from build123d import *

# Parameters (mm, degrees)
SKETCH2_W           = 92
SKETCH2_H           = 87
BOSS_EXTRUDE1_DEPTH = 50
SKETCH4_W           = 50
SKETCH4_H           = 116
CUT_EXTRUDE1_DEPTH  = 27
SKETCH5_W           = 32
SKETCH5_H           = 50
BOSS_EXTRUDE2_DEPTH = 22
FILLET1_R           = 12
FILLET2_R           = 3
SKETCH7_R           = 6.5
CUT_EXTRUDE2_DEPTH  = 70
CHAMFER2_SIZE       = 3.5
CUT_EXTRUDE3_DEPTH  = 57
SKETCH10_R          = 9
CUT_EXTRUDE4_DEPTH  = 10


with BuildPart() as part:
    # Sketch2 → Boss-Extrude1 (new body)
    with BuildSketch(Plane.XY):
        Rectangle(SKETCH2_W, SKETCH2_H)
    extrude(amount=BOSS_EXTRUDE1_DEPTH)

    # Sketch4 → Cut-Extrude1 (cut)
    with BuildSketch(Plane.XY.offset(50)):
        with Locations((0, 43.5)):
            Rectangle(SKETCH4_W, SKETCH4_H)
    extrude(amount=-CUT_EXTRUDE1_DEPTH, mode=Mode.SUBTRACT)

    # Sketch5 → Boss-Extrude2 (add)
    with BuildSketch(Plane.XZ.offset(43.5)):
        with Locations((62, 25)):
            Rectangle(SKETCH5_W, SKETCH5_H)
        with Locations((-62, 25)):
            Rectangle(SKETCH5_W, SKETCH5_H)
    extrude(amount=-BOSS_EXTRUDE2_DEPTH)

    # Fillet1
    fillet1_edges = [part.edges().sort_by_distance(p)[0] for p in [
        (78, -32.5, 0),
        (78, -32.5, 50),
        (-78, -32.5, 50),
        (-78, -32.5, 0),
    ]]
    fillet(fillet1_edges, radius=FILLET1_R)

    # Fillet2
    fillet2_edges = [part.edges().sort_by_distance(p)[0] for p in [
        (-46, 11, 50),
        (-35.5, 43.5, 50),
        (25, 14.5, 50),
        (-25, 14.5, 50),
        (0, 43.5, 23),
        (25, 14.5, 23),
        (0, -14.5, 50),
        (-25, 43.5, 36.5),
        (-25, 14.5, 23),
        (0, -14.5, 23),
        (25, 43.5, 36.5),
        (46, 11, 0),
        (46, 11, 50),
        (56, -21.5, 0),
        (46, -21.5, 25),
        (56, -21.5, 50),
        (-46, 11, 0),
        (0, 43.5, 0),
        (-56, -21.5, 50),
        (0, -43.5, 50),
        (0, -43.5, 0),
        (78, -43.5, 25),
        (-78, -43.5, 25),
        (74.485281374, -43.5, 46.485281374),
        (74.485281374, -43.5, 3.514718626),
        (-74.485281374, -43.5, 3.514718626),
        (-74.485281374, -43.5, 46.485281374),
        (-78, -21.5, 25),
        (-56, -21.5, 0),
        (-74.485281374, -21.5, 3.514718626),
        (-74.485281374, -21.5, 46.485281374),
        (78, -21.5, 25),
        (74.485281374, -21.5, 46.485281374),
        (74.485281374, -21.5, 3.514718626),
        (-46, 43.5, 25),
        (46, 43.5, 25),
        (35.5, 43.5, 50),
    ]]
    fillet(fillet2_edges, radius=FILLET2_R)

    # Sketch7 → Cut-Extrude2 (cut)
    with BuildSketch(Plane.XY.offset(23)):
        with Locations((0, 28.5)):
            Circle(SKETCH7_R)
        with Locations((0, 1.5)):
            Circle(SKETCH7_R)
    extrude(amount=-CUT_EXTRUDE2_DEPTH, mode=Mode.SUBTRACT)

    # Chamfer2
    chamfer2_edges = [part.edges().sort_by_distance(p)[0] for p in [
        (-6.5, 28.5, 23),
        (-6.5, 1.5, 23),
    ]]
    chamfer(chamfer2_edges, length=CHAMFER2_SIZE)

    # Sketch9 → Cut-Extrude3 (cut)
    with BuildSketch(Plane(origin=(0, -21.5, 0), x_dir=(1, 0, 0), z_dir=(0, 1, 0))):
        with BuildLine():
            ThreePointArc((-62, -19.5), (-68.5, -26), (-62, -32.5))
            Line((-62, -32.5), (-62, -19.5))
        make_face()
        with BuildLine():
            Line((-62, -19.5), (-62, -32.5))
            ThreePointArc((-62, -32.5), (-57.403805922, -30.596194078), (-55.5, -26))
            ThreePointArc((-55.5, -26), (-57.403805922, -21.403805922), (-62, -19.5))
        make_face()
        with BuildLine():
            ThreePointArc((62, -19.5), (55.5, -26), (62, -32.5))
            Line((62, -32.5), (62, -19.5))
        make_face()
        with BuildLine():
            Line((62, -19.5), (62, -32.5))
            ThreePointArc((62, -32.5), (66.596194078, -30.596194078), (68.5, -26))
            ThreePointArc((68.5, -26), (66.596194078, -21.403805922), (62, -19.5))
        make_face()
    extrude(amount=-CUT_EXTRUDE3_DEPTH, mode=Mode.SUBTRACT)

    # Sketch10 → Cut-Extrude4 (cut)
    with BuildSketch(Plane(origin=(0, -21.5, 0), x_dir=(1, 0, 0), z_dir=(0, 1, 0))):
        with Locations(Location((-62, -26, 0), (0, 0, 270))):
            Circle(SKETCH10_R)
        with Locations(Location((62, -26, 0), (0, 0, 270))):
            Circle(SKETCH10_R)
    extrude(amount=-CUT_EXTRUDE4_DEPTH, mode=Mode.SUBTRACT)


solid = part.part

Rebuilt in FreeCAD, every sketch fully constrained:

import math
import FreeCAD as App
import Part
import Sketcher

V = App.Vector
Q = App.Units.Quantity


def edges_at(feature, points):
    """Names of the edges that pass closest to the given points."""
    edges = feature.Shape.Edges
    near = lambda p: min(range(len(edges)), key=lambda i: edges[i].distToShape(Part.Vertex(*p))[0])
    return sorted({f"Edge{near(p) + 1}" for p in points})


def add_polygon(sketch, points):
    """Adds a closed chain of lines whose ends are joined by coincident constraints."""
    first, n = sketch.GeometryCount, len(points)
    for a, b in zip(points, points[1:] + points[:1]):
        sketch.addGeometry(Part.LineSegment(App.Vector(*a, 0), App.Vector(*b, 0)), False)
    for i in range(n):
        sketch.addConstraint(Sketcher.Constraint("Coincident", first + i, 2, first + (i + 1) % n, 1))

doc = App.newDocument("Part")
body = doc.addObject("PartDesign::Body", "Body")

# Sketch on XY plane
sketch1 = body.newObject("Sketcher::SketchObject", "Sketch")
sketch1.AttachmentSupport = (doc.getObject("XY_Plane"), [""])
sketch1.MapMode = "FlatFace"
add_polygon(sketch1, [(-46, 43.5), (-46, -43.5), (46, -43.5), (46, 43.5)])  # lines 0-3
sketch1.addConstraint([
    Sketcher.Constraint("Vertical", 0),
    Sketcher.Constraint("Horizontal", 1),
    Sketcher.Constraint("Vertical", 2),
    Sketcher.Constraint("Horizontal", 3),
    Sketcher.Constraint("Symmetric", 0, 2, 2, 2, -1, 1),
    Sketcher.Constraint("DistanceX", 1, 1, 1, 2, Q("92 mm")),
    Sketcher.Constraint("DistanceY", 0, 2, 0, 1, Q("87 mm")),
])
pad1 = body.newObject("PartDesign::Pad", "Pad")
pad1.Profile = sketch1
pad1.Length = 50

# Sketch on XY plane
sketch2 = body.newObject("Sketcher::SketchObject", "Sketch001")
sketch2.AttachmentSupport = (doc.getObject("XY_Plane"), [""])
sketch2.MapMode = "FlatFace"
sketch2.AttachmentOffset = App.Placement(V(0, 0, 50), App.Rotation())
add_polygon(sketch2, [(-25, 101.5), (-25, -14.5), (25, -14.5), (25, 101.5)])  # lines 0-3
sketch2.addConstraint([
    Sketcher.Constraint("Vertical", 0),
    Sketcher.Constraint("Horizontal", 1),
    Sketcher.Constraint("Vertical", 2),
    Sketcher.Constraint("Horizontal", 3),
    Sketcher.Constraint("DistanceX", 1, 1, 1, 2, Q("50 mm")),
    Sketcher.Constraint("DistanceY", 0, 2, 0, 1, Q("116 mm")),
    Sketcher.Constraint("DistanceX", 0, 2, -1, 1, Q("25 mm")),
    Sketcher.Constraint("DistanceY", 0, 2, -1, 1, Q("14.5 mm")),
])
pocket1 = body.newObject("PartDesign::Pocket", "Pocket")
pocket1.Profile = sketch2
pocket1.Length = 27

# Sketch on XZ plane
sketch3 = body.newObject("Sketcher::SketchObject", "Sketch002")
sketch3.AttachmentSupport = (doc.getObject("XZ_Plane"), [""])
sketch3.MapMode = "FlatFace"
sketch3.AttachmentOffset = App.Placement(V(0, 0, 43.5), App.Rotation())
add_polygon(sketch3, [(46, 50), (46, 0), (78, 0), (78, 50)])  # lines 0-3
add_polygon(sketch3, [(-78, 50), (-78, 0), (-46, 0), (-46, 50)])  # lines 4-7
sketch3.addConstraint([
    Sketcher.Constraint("Vertical", 0),
    Sketcher.Constraint("Horizontal", 1),
    Sketcher.Constraint("Vertical", 2),
    Sketcher.Constraint("Horizontal", 3),
    Sketcher.Constraint("Vertical", 4),
    Sketcher.Constraint("Horizontal", 5),
    Sketcher.Constraint("Vertical", 6),
    Sketcher.Constraint("Horizontal", 7),
    Sketcher.Constraint("Symmetric", 1, 2, 4, 2, -1, 1),
    Sketcher.Constraint("Symmetric", 0, 2, 5, 2, -2),
    Sketcher.Constraint("Horizontal", 3, 2, 6, 2),
    Sketcher.Constraint("DistanceX", 1, 1, 1, 2, Q("32 mm")),
    Sketcher.Constraint("DistanceY", 0, 2, 0, 1, Q("50 mm")),
    Sketcher.Constraint("DistanceX", -1, 1, 0, 2, Q("46 mm")),
])
pad2 = body.newObject("PartDesign::Pad", "Pad001")
pad2.Profile = sketch3
pad2.Length = 22
pad2.Reversed = True
doc.recompute()

fillet = body.newObject("PartDesign::Fillet", "Fillet")
fillet.Base = (pad2, edges_at(pad2, [
    (78, -32.5, 0),
    (78, -32.5, 50),
    (-78, -32.5, 50),
    (-78, -32.5, 0),
]))
fillet.Radius = 12
doc.recompute()

fillet2 = body.newObject("PartDesign::Fillet", "Fillet001")
fillet2.Base = (fillet, edges_at(fillet, [
    (-46, 11, 50),
    (-35.5, 43.5, 50),
    (25, 14.5, 50),
    (-25, 14.5, 50),
    (0, 43.5, 23),
    (25, 14.5, 23),
    (0, -14.5, 50),
    (-25, 43.5, 36.5),
    (-25, 14.5, 23),
    (0, -14.5, 23),
    (25, 43.5, 36.5),
    (46, 11, 0),
    (46, 11, 50),
    (56, -21.5, 0),
    (46, -21.5, 25),
    (56, -21.5, 50),
    (-46, 11, 0),
    (0, 43.5, 0),
    (-56, -21.5, 50),
    (0, -43.5, 50),
    (0, -43.5, 0),
    (78, -43.5, 25),
    (-78, -43.5, 25),
    (74.485, -43.5, 46.485),
    (74.485, -43.5, 3.515),
    (-74.485, -43.5, 3.515),
    (-74.485, -43.5, 46.485),
    (-78, -21.5, 25),
    (-56, -21.5, 0),
    (-74.485, -21.5, 3.515),
    (-74.485, -21.5, 46.485),
    (78, -21.5, 25),
    (74.485, -21.5, 46.485),
    (74.485, -21.5, 3.515),
    (-46, 43.5, 25),
    (46, 43.5, 25),
    (35.5, 43.5, 50),
]))
fillet2.Radius = 3

# Sketch on XY plane
sketch4 = body.newObject("Sketcher::SketchObject", "Sketch003")
sketch4.AttachmentSupport = (doc.getObject("XY_Plane"), [""])
sketch4.MapMode = "FlatFace"
sketch4.AttachmentOffset = App.Placement(V(0, 0, 23), App.Rotation())
sketch4.addGeometry([
    Part.Circle(V(0, 28.5, 0), V(0, 0, 1), 6.5),
    Part.Circle(V(0, 1.5, 0), V(0, 0, 1), 6.5),
], False)
sketch4.addConstraint([
    Sketcher.Constraint("Equal", 0, 1),
    Sketcher.Constraint("PointOnObject", 0, 3, -2),
    Sketcher.Constraint("PointOnObject", 1, 3, -2),
    Sketcher.Constraint("Diameter", 0, Q("13 mm")),
    Sketcher.Constraint("DistanceY", 1, 3, 0, 3, Q("27 mm")),
    Sketcher.Constraint("DistanceY", -1, 1, 0, 3, Q("28.5 mm")),
])
pocket2 = body.newObject("PartDesign::Pocket", "Pocket001")
pocket2.Profile = sketch4
pocket2.Length = 70
doc.recompute()

chamfer = body.newObject("PartDesign::Chamfer", "Chamfer")
chamfer.Base = (pocket2, edges_at(pocket2, [(-6.5, 28.5, 23), (-6.5, 1.5, 23)]))
chamfer.Size = 3.5

# Sketch on XZ plane
sketch5 = body.newObject("Sketcher::SketchObject", "Sketch004")
sketch5.AttachmentSupport = (doc.getObject("XZ_Plane"), [""])
sketch5.MapMode = "FlatFace"
sketch5.AttachmentOffset = App.Placement(V(0, 0, 21.5), App.Rotation())
sketch5.addGeometry([
    Part.ArcOfCircle(Part.Circle(V(-62, 26, 0), V(0, 0, 1), 6.5), math.radians(90), math.radians(270)),  # 0
    Part.ArcOfCircle(Part.Circle(V(-62, 26, 0), V(0, 0, 1), 6.5), math.radians(0), math.radians(90)),  # 1
    Part.ArcOfCircle(Part.Circle(V(-62, 26, 0), V(0, 0, 1), 6.5), math.radians(-90), math.radians(0)),  # 2
    Part.ArcOfCircle(Part.Circle(V(62, 26, 0), V(0, 0, 1), 6.5), math.radians(90), math.radians(270)),  # 3
    Part.ArcOfCircle(Part.Circle(V(62, 26, 0), V(0, 0, 1), 6.5), math.radians(0), math.radians(90)),  # 4
    Part.ArcOfCircle(Part.Circle(V(62, 26, 0), V(0, 0, 1), 6.5), math.radians(-90), math.radians(0)),  # 5
], False)
sketch5.addConstraint([
    Sketcher.Constraint("Tangent", 0, 1, 1, 2),
    Sketcher.Constraint("Tangent", 1, 1, 2, 2),
    Sketcher.Constraint("Tangent", 2, 1, 0, 2),
    Sketcher.Constraint("Tangent", 3, 1, 4, 2),
    Sketcher.Constraint("Tangent", 4, 1, 5, 2),
    Sketcher.Constraint("Tangent", 5, 1, 3, 2),
    Sketcher.Constraint("Equal", 2, 3),
    Sketcher.Constraint("Symmetric", 0, 3, 3, 3, -2),
    Sketcher.Constraint("Horizontal", 5, 3, 1, 1),
    Sketcher.Constraint("Horizontal", 1, 1, 4, 1),
    Sketcher.Constraint("Vertical", 2, 3, 0, 1),
    Sketcher.Constraint("Vertical", 0, 1, 2, 1),
    Sketcher.Constraint("Vertical", 5, 3, 3, 1),
    Sketcher.Constraint("Vertical", 3, 1, 5, 1),
    Sketcher.Constraint("Radius", 0, Q("6.5 mm")),
    Sketcher.Constraint("DistanceX", 0, 3, -1, 1, Q("62 mm")),
    Sketcher.Constraint("DistanceY", -1, 1, 0, 3, Q("26 mm")),
])
pocket3 = body.newObject("PartDesign::Pocket", "Pocket002")
pocket3.Profile = sketch5
pocket3.Length = 57
pocket3.Reversed = True

# Sketch on XZ plane
sketch6 = body.newObject("Sketcher::SketchObject", "Sketch005")
sketch6.AttachmentSupport = (doc.getObject("XZ_Plane"), [""])
sketch6.MapMode = "FlatFace"
sketch6.AttachmentOffset = App.Placement(V(0, 0, 21.5), App.Rotation())
sketch6.addGeometry([
    Part.Circle(V(-62, 26, 0), V(0, 0, 1), 9),
    Part.Circle(V(62, 26, 0), V(0, 0, 1), 9),
], False)
sketch6.addConstraint([
    Sketcher.Constraint("Equal", 0, 1),
    Sketcher.Constraint("Symmetric", 0, 3, 1, 3, -2),
    Sketcher.Constraint("Diameter", 0, Q("18 mm")),
    Sketcher.Constraint("DistanceX", 0, 3, -1, 1, Q("62 mm")),
    Sketcher.Constraint("DistanceY", -1, 1, 0, 3, Q("26 mm")),
])
pocket4 = body.newObject("PartDesign::Pocket", "Pocket003")
pocket4.Profile = sketch6
pocket4.Length = 10
pocket4.Reversed = True

doc.recompute()
